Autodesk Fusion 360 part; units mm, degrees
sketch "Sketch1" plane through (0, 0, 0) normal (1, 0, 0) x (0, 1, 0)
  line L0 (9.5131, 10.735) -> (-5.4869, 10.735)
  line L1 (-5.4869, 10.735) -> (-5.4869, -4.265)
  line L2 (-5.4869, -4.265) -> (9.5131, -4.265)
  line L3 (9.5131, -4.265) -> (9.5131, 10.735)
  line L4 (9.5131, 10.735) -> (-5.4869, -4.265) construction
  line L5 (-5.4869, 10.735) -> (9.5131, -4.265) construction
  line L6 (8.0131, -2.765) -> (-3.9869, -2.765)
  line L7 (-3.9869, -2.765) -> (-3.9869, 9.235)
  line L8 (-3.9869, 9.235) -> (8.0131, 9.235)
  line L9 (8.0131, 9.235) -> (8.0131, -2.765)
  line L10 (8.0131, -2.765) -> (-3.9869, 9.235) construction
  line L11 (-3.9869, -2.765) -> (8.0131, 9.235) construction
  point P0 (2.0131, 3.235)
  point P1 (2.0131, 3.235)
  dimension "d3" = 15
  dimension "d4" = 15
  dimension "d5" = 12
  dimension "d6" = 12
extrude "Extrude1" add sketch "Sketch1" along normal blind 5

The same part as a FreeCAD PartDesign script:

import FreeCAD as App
import Part
import Sketcher


def add_polygon(sketch, points):
    """Adds a closed chain of lines whose ends are joined by coincident constraints."""
    first, n = sketch.GeometryCount, len(points)
    for a, b in zip(points, points[1:] + points[:1]):
        sketch.addGeometry(Part.LineSegment(App.Vector(*a, 0), App.Vector(*b, 0)), False)
    for i in range(n):
        sketch.addConstraint(Sketcher.Constraint("Coincident", first + i, 2, first + (i + 1) % n, 1))

doc = App.newDocument("Part")
body = doc.addObject("PartDesign::Body", "Body")

# Sketch on YZ plane
sketch1 = body.newObject("Sketcher::SketchObject", "Sketch")
sketch1.AttachmentSupport = (doc.getObject("YZ_Plane"), [""])
sketch1.MapMode = "FlatFace"
add_polygon(sketch1, [(10, -4), (10, 11), (-5, 11), (-5, -4)])  # lines 0-3
add_polygon(sketch1, [(8, 9), (8, -3), (-4, -3), (-4, 9)])  # lines 4-7
sketch1.addConstraint([
    Sketcher.Constraint("Vertical", 0),
    Sketcher.Constraint("Horizontal", 1),
    Sketcher.Constraint("Vertical", 2),
    Sketcher.Constraint("Horizontal", 3),
    Sketcher.Constraint("Vertical", 4),
    Sketcher.Constraint("Horizontal", 5),
    Sketcher.Constraint("Vertical", 6),
    Sketcher.Constraint("Horizontal", 7),
    Sketcher.Constraint("Equal", 3, 0),
    Sketcher.Constraint("Equal", 7, 4),
    Sketcher.Constraint("DistanceX", 1, 2, 1, 1, 15.0),
    Sketcher.Constraint("DistanceX", 5, 2, 5, 1, 12.0),
    Sketcher.Constraint("DistanceX", 4, 2, 3, 2, 1.5),
    Sketcher.Constraint("DistanceY", 3, 2, 4, 2, 1.5),
    Sketcher.Constraint("DistanceX", -1, 1, 0, 2, 9.513),
    Sketcher.Constraint("DistanceY", -1, 1, 0, 2, 10.735),
])
pad1 = body.newObject("PartDesign::Pad", "Pad")
pad1.Profile = sketch1
pad1.Length = 5

doc.recompute()
